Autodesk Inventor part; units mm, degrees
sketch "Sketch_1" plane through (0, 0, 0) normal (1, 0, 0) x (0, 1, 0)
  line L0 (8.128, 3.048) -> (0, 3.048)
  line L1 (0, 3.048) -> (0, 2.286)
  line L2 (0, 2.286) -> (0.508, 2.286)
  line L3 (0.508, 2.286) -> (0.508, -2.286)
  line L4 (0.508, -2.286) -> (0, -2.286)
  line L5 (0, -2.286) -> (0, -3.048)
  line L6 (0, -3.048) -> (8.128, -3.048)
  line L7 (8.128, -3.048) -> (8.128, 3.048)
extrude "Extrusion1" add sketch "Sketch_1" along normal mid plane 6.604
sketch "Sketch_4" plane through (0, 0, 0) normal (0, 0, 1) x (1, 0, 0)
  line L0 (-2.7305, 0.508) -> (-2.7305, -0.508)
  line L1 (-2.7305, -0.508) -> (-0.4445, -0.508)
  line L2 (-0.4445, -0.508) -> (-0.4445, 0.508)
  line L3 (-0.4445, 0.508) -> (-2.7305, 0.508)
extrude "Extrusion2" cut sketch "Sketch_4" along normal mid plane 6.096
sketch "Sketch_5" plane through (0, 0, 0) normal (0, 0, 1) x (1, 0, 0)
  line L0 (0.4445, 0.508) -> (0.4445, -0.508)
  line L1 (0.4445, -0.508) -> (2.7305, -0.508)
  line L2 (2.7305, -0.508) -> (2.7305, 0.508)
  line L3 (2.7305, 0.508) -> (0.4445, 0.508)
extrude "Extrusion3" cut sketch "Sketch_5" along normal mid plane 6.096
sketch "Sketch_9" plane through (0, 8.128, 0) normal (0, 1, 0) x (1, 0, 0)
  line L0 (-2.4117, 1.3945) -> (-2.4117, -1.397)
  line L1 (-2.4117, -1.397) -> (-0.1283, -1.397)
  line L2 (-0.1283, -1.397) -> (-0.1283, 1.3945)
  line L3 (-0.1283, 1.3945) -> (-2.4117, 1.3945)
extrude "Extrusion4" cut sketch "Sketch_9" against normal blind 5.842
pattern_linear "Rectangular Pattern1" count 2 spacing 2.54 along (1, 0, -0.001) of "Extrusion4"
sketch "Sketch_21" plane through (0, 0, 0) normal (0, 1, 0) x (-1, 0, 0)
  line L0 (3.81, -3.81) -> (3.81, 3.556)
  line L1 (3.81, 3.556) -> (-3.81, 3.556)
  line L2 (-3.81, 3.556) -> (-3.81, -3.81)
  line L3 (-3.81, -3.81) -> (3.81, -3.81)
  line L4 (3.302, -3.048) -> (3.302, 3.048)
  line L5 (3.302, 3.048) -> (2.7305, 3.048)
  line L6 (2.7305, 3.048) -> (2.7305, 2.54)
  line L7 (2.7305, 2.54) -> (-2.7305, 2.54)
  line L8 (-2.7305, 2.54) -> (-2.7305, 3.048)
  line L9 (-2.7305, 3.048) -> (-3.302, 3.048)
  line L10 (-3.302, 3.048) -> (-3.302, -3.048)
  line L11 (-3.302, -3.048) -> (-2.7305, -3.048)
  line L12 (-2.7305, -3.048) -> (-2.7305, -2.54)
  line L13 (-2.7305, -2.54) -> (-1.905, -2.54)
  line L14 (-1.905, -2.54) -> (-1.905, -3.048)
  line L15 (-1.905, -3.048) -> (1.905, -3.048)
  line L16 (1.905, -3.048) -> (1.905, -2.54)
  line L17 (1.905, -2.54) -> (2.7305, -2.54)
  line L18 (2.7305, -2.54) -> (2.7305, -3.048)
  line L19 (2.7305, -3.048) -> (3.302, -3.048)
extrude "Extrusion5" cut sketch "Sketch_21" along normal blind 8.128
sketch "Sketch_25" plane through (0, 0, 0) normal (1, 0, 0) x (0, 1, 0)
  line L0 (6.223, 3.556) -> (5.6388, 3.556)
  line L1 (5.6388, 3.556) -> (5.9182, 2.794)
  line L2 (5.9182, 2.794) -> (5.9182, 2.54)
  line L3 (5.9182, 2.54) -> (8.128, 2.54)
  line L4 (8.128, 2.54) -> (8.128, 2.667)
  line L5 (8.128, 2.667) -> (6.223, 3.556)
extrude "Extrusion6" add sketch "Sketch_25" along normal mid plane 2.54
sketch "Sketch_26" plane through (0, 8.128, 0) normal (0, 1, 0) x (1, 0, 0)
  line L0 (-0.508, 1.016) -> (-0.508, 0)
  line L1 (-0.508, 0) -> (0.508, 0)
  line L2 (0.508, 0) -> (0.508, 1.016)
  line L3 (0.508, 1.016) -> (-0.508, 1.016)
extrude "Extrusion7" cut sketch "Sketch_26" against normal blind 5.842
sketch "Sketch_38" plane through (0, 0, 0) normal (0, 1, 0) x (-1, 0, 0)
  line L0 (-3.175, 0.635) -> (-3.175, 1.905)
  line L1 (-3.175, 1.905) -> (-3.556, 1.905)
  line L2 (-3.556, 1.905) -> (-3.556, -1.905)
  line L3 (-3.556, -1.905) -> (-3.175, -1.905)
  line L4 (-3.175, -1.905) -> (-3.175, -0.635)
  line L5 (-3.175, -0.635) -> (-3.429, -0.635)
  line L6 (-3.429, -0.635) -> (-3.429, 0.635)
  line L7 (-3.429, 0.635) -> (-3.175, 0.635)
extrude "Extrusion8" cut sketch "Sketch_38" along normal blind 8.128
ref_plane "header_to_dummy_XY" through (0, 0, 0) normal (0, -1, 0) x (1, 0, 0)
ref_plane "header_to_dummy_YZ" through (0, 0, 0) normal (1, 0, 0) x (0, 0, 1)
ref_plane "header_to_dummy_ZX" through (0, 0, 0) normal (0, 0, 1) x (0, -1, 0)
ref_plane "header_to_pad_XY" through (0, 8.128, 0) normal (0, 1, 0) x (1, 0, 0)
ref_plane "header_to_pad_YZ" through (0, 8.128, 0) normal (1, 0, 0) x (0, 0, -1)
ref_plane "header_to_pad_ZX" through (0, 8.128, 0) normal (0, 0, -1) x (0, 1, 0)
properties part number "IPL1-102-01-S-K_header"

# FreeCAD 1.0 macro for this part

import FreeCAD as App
import Part
import Sketcher
Q = App.Units.Quantity

doc = App.newDocument("Part")
params = doc.addObject("Spreadsheet::Sheet", "Params")
for row, (alias, value) in enumerate([
    ("sketch1_width", "0.32 in"),
    ("sketch1_width2", "0.02 in"),
    ("sketch1_height", "0.24 in"),
    ("sketch1_height2", "0.03 in"),
    ("pad1_length", "0.26 in"),
    ("sketch2_width", "0.09 in"),
    ("sketch2_height", "0.04 in"),
    ("pocket1_length", "0.24 in"),
    ("sketch3_width", "0.09 in"),
    ("sketch3_height", "0.04 in"),
    ("pocket2_length", "0.24 in"),
    ("pocket3_length", "0.23 in"),
    ("linearpattern_pitch", "0.1 in"),
    ("sketch5_width", "0.3 in"),
    ("sketch5_width2", "0.15 in"),
    ("sketch5_height", "0.29 in"),
    ("sketch5_height2", "0.24 in"),
    ("sketch5_height3", "0.02 in"),
    ("pocket4_length", "0.32 in"),
    ("sketch6_height", "0.01 in"),
    ("sketch6_width", "0.023 in"),
    ("sketch6_width2", "0.087 in"),
    ("sketch6_height2", "0.005 in"),
    ("pad2_length", "0.1 in"),
    ("sketch7_width", "0.04 in"),
    ("pocket5_length", "0.23 in"),
    ("sketch8_width", "0.01 in"),
    ("sketch8_height", "0.05 in"),
    ("sketch8_width2", "0.015 in"),
    ("pocket6_length", "0.32 in"),
], start=1):
    params.set(f"A{row}", alias)
    params.set(f"B{row}", "=" + value)
    params.setAlias(f"B{row}", alias)

body = doc.addObject("PartDesign::Body", "Body")

# Sketch on YZ plane
sketch1 = body.newObject("Sketcher::SketchObject", "Sketch")
sketch1.AttachmentSupport = (doc.getObject("YZ_Plane"), [""])
sketch1.MapMode = "FlatFace"
sketch1.addGeometry(Part.LineSegment(App.Vector(8.1, -3, 0), App.Vector(8.1, 3, 0)), False)
sketch1.addGeometry(Part.LineSegment(App.Vector(8.1, 3, 0), App.Vector(0, 3, 0)), False)
sketch1.addGeometry(Part.LineSegment(App.Vector(0, 3, 0), App.Vector(0, 2.3, 0)), False)
sketch1.addGeometry(Part.LineSegment(App.Vector(0, 2.3, 0), App.Vector(0.5, 2.3, 0)), False)
sketch1.addGeometry(Part.LineSegment(App.Vector(0.5, 2.3, 0), App.Vector(0.5, -2.3, 0)), False)
sketch1.addGeometry(Part.LineSegment(App.Vector(0.5, -2.3, 0), App.Vector(0, -2.3, 0)), False)
sketch1.addGeometry(Part.LineSegment(App.Vector(0, -2.3, 0), App.Vector(0, -3, 0)), False)
sketch1.addGeometry(Part.LineSegment(App.Vector(0, -3, 0), App.Vector(8.1, -3, 0)), False)
sketch1.addConstraint(Sketcher.Constraint("Coincident", 0, 2, 1, 1))
sketch1.addConstraint(Sketcher.Constraint("Coincident", 1, 2, 2, 1))
sketch1.addConstraint(Sketcher.Constraint("Coincident", 2, 2, 3, 1))
sketch1.addConstraint(Sketcher.Constraint("Coincident", 3, 2, 4, 1))
sketch1.addConstraint(Sketcher.Constraint("Coincident", 4, 2, 5, 1))
sketch1.addConstraint(Sketcher.Constraint("Coincident", 5, 2, 6, 1))
sketch1.addConstraint(Sketcher.Constraint("Coincident", 6, 2, 7, 1))
sketch1.addConstraint(Sketcher.Constraint("Coincident", 7, 2, 0, 1))
sketch1.addConstraint(Sketcher.Constraint("Vertical", 0))
sketch1.addConstraint(Sketcher.Constraint("Horizontal", 1))
sketch1.addConstraint(Sketcher.Constraint("Vertical", 2))
sketch1.addConstraint(Sketcher.Constraint("Horizontal", 3))
sketch1.addConstraint(Sketcher.Constraint("Vertical", 4))
sketch1.addConstraint(Sketcher.Constraint("Horizontal", 5))
sketch1.addConstraint(Sketcher.Constraint("Vertical", 6))
sketch1.addConstraint(Sketcher.Constraint("Horizontal", 7))
sketch1.addConstraint(Sketcher.Constraint("Symmetric", 2, 2, 5, 2, -1, 1))
sketch1.addConstraint(Sketcher.Constraint("Symmetric", 1, 2, 6, 2, -1))
sketch1.addConstraint(Sketcher.Constraint("DistanceX", 1, 2, 1, 1, Q("0.32 in")))
sketch1.addConstraint(Sketcher.Constraint("DistanceX", 3, 1, 3, 2, Q("0.02 in")))
sketch1.addConstraint(Sketcher.Constraint("DistanceY", 0, 1, 0, 2, Q("0.24 in")))
sketch1.addConstraint(Sketcher.Constraint("DistanceY", 2, 2, 2, 1, Q("0.03 in")))
sketch1.setExpression("Constraints[18]", "Params.sketch1_width")
sketch1.setExpression("Constraints[19]", "Params.sketch1_width2")
sketch1.setExpression("Constraints[20]", "Params.sketch1_height")
sketch1.setExpression("Constraints[21]", "Params.sketch1_height2")
pad1 = body.newObject("PartDesign::Pad", "Pad")
pad1.Profile = sketch1
pad1.setExpression("Length", "Params.pad1_length")
pad1.Midplane = True

# Sketch on XY plane
sketch2 = body.newObject("Sketcher::SketchObject", "Sketch001")
sketch2.AttachmentSupport = (doc.getObject("XY_Plane"), [""])
sketch2.MapMode = "FlatFace"
sketch2.addGeometry(Part.LineSegment(App.Vector(-0.4, 0.5, 0), App.Vector(-2.7, 0.5, 0)), False)
sketch2.addGeometry(Part.LineSegment(App.Vector(-2.7, 0.5, 0), App.Vector(-2.7, -0.5, 0)), False)
sketch2.addGeometry(Part.LineSegment(App.Vector(-2.7, -0.5, 0), App.Vector(-0.4, -0.5, 0)), False)
sketch2.addGeometry(Part.LineSegment(App.Vector(-0.4, -0.5, 0), App.Vector(-0.4, 0.5, 0)), False)
sketch2.addConstraint(Sketcher.Constraint("Coincident", 0, 2, 1, 1))
sketch2.addConstraint(Sketcher.Constraint("Coincident", 1, 2, 2, 1))
sketch2.addConstraint(Sketcher.Constraint("Coincident", 2, 2, 3, 1))
sketch2.addConstraint(Sketcher.Constraint("Coincident", 3, 2, 0, 1))
sketch2.addConstraint(Sketcher.Constraint("Horizontal", 0))
sketch2.addConstraint(Sketcher.Constraint("Vertical", 1))
sketch2.addConstraint(Sketcher.Constraint("Horizontal", 2))
sketch2.addConstraint(Sketcher.Constraint("Vertical", 3))
sketch2.addConstraint(Sketcher.Constraint("DistanceX", 0, 2, 0, 1, Q("0.09 in")))
sketch2.addConstraint(Sketcher.Constraint("DistanceY", 1, 2, 1, 1, Q("0.04 in")))
sketch2.addConstraint(Sketcher.Constraint("DistanceY", -1, 1, 0, 2, Q("0.02 in")))
sketch2.addConstraint(Sketcher.Constraint("DistanceX", 0, 2, -1, 1, Q("0.1075 in")))
sketch2.setExpression("Constraints[8]", "Params.sketch2_width")
sketch2.setExpression("Constraints[9]", "Params.sketch2_height")
pocket1 = body.newObject("PartDesign::Pocket", "Pocket")
pocket1.Profile = sketch2
pocket1.setExpression("Length", "Params.pocket1_length")
pocket1.Midplane = True

# Sketch on XY plane
sketch3 = body.newObject("Sketcher::SketchObject", "Sketch002")
sketch3.AttachmentSupport = (doc.getObject("XY_Plane"), [""])
sketch3.MapMode = "FlatFace"
sketch3.addGeometry(Part.LineSegment(App.Vector(2.7, 0.5, 0), App.Vector(0.4, 0.5, 0)), False)
sketch3.addGeometry(Part.LineSegment(App.Vector(0.4, 0.5, 0), App.Vector(0.4, -0.5, 0)), False)
sketch3.addGeometry(Part.LineSegment(App.Vector(0.4, -0.5, 0), App.Vector(2.7, -0.5, 0)), False)
sketch3.addGeometry(Part.LineSegment(App.Vector(2.7, -0.5, 0), App.Vector(2.7, 0.5, 0)), False)
sketch3.addConstraint(Sketcher.Constraint("Coincident", 0, 2, 1, 1))
sketch3.addConstraint(Sketcher.Constraint("Coincident", 1, 2, 2, 1))
sketch3.addConstraint(Sketcher.Constraint("Coincident", 2, 2, 3, 1))
sketch3.addConstraint(Sketcher.Constraint("Coincident", 3, 2, 0, 1))
sketch3.addConstraint(Sketcher.Constraint("Horizontal", 0))
sketch3.addConstraint(Sketcher.Constraint("Vertical", 1))
sketch3.addConstraint(Sketcher.Constraint("Horizontal", 2))
sketch3.addConstraint(Sketcher.Constraint("Vertical", 3))
sketch3.addConstraint(Sketcher.Constraint("DistanceX", 0, 2, 0, 1, Q("0.09 in")))
sketch3.addConstraint(Sketcher.Constraint("DistanceY", 1, 2, 1, 1, Q("0.04 in")))
sketch3.addConstraint(Sketcher.Constraint("DistanceY", -1, 1, 0, 2, Q("0.02 in")))
sketch3.addConstraint(Sketcher.Constraint("DistanceX", -1, 1, 0, 2, Q("0.0175 in")))
sketch3.setExpression("Constraints[8]", "Params.sketch3_width")
sketch3.setExpression("Constraints[9]", "Params.sketch3_height")
pocket2 = body.newObject("PartDesign::Pocket", "Pocket001")
pocket2.Profile = sketch3
pocket2.setExpression("Length", "Params.pocket2_length")
pocket2.Midplane = True

# Sketch on XZ plane
sketch4 = body.newObject("Sketcher::SketchObject", "Sketch003")
sketch4.AttachmentSupport = (doc.getObject("XZ_Plane"), [""])
sketch4.MapMode = "FlatFace"
sketch4.AttachmentOffset = App.Placement(App.Vector(0, 0, -0.32 * 25.4), App.Rotation())
sketch4.addGeometry(Part.LineSegment(App.Vector(-0.1, -1.4, 0), App.Vector(-2.4, -1.4, 0)), False)
sketch4.addGeometry(Part.LineSegment(App.Vector(-2.4, -1.4, 0), App.Vector(-2.4, 1.4, 0)), False)
sketch4.addGeometry(Part.LineSegment(App.Vector(-2.4, 1.4, 0), App.Vector(-0.1, 1.4, 0)), False)
sketch4.addGeometry(Part.LineSegment(App.Vector(-0.1, 1.4, 0), App.Vector(-0.1, -1.4, 0)), False)
sketch4.addConstraint(Sketcher.Constraint("Coincident", 0, 2, 1, 1))
sketch4.addConstraint(Sketcher.Constraint("Coincident", 1, 2, 2, 1))
sketch4.addConstraint(Sketcher.Constraint("Coincident", 2, 2, 3, 1))
sketch4.addConstraint(Sketcher.Constraint("Coincident", 3, 2, 0, 1))
sketch4.addConstraint(Sketcher.Constraint("Horizontal", 0))
sketch4.addConstraint(Sketcher.Constraint("Vertical", 1))
sketch4.addConstraint(Sketcher.Constraint("Horizontal", 2))
sketch4.addConstraint(Sketcher.Constraint("Vertical", 3))
sketch4.addConstraint(Sketcher.Constraint("DistanceX", 0, 2, 0, 1, Q("0.0899 in")))
sketch4.addConstraint(Sketcher.Constraint("DistanceY", 1, 1, 1, 2, Q("0.1099 in")))
sketch4.addConstraint(Sketcher.Constraint("DistanceY", -1, 1, 1, 2, Q("0.055 in")))
sketch4.addConstraint(Sketcher.Constraint("DistanceX", 0, 2, -1, 1, 2.4117))
pocket3 = body.newObject("PartDesign::Pocket", "Pocket002")
pocket3.Profile = sketch4
pocket3.setExpression("Length", "Params.pocket3_length")
pocket3.Reversed = True
doc.recompute()

datumline = body.newObject("PartDesign::Line", "DatumLine")
datumline.Placement = App.Placement(App.Vector(0, 0, 0), App.Rotation(App.Vector(0, 0, 1), App.Vector(0.9999995, 0, -0.001)))
linearpattern = body.newObject("PartDesign::LinearPattern", "LinearPattern")
linearpattern.Originals = [pocket3]
linearpattern.Direction = (datumline, [""])
linearpattern.Mode = "offset"
linearpattern.setExpression("Offset", "Params.linearpattern_pitch")
linearpattern.Occurrences = 2
body.Tip = linearpattern

# Sketch on XZ plane
sketch5 = body.newObject("Sketcher::SketchObject", "Sketch004")
sketch5.AttachmentSupport = (doc.getObject("XZ_Plane"), [""])
sketch5.MapMode = "FlatFace"
sketch5.addGeometry(Part.LineSegment(App.Vector(3.8, -3.8, 0), App.Vector(-3.8, -3.8, 0)), False)
sketch5.addGeometry(Part.LineSegment(App.Vector(-3.8, -3.8, 0), App.Vector(-3.8, 3.6, 0)), False)
sketch5.addGeometry(Part.LineSegment(App.Vector(-3.8, 3.6, 0), App.Vector(3.8, 3.6, 0)), False)
sketch5.addGeometry(Part.LineSegment(App.Vector(3.8, 3.6, 0), App.Vector(3.8, -3.8, 0)), False)
sketch5.addGeometry(Part.LineSegment(App.Vector(-3.3, 3, 0), App.Vector(-3.3, -3, 0)), False)
sketch5.addGeometry(Part.LineSegment(App.Vector(-3.3, -3, 0), App.Vector(-2.7, -3, 0)), False)
sketch5.addGeometry(Part.LineSegment(App.Vector(-2.7, -3, 0), App.Vector(-2.7, -2.5, 0)), False)
sketch5.addGeometry(Part.LineSegment(App.Vector(-2.7, -2.5, 0), App.Vector(-1.9, -2.5, 0)), False)
sketch5.addGeometry(Part.LineSegment(App.Vector(-1.9, -2.5, 0), App.Vector(-1.9, -3, 0)), False)
sketch5.addGeometry(Part.LineSegment(App.Vector(-1.9, -3, 0), App.Vector(1.9, -3, 0)), False)
sketch5.addGeometry(Part.LineSegment(App.Vector(1.9, -3, 0), App.Vector(1.9, -2.5, 0)), False)
sketch5.addGeometry(Part.LineSegment(App.Vector(1.9, -2.5, 0), App.Vector(2.7, -2.5, 0)), False)
sketch5.addGeometry(Part.LineSegment(App.Vector(2.7, -2.5, 0), App.Vector(2.7, -3, 0)), False)
sketch5.addGeometry(Part.LineSegment(App.Vector(2.7, -3, 0), App.Vector(3.3, -3, 0)), False)
sketch5.addGeometry(Part.LineSegment(App.Vector(3.3, -3, 0), App.Vector(3.3, 3, 0)), False)
sketch5.addGeometry(Part.LineSegment(App.Vector(3.3, 3, 0), App.Vector(2.7, 3, 0)), False)
sketch5.addGeometry(Part.LineSegment(App.Vector(2.7, 3, 0), App.Vector(2.7, 2.5, 0)), False)
sketch5.addGeometry(Part.LineSegment(App.Vector(2.7, 2.5, 0), App.Vector(-2.7, 2.5, 0)), False)
sketch5.addGeometry(Part.LineSegment(App.Vector(-2.7, 2.5, 0), App.Vector(-2.7, 3, 0)), False)
sketch5.addGeometry(Part.LineSegment(App.Vector(-2.7, 3, 0), App.Vector(-3.3, 3, 0)), False)
sketch5.addConstraint(Sketcher.Constraint("Coincident", 0, 2, 1, 1))
sketch5.addConstraint(Sketcher.Constraint("Coincident", 1, 2, 2, 1))
sketch5.addConstraint(Sketcher.Constraint("Coincident", 2, 2, 3, 1))
sketch5.addConstraint(Sketcher.Constraint("Coincident", 3, 2, 0, 1))
sketch5.addConstraint(Sketcher.Constraint("Coincident", 4, 2, 5, 1))
sketch5.addConstraint(Sketcher.Constraint("Coincident", 5, 2, 6, 1))
sketch5.addConstraint(Sketcher.Constraint("Coincident", 6, 2, 7, 1))
sketch5.addConstraint(Sketcher.Constraint("Coincident", 7, 2, 8, 1))
sketch5.addConstraint(Sketcher.Constraint("Coincident", 8, 2, 9, 1))
sketch5.addConstraint(Sketcher.Constraint("Coincident", 9, 2, 10, 1))
sketch5.addConstraint(Sketcher.Constraint("Coincident", 10, 2, 11, 1))
sketch5.addConstraint(Sketcher.Constraint("Coincident", 11, 2, 12, 1))
sketch5.addConstraint(Sketcher.Constraint("Coincident", 12, 2, 13, 1))
sketch5.addConstraint(Sketcher.Constraint("Coincident", 13, 2, 14, 1))
sketch5.addConstraint(Sketcher.Constraint("Coincident", 14, 2, 15, 1))
sketch5.addConstraint(Sketcher.Constraint("Coincident", 15, 2, 16, 1))
sketch5.addConstraint(Sketcher.Constraint("Coincident", 16, 2, 17, 1))
sketch5.addConstraint(Sketcher.Constraint("Coincident", 17, 2, 18, 1))
sketch5.addConstraint(Sketcher.Constraint("Coincident", 18, 2, 19, 1))
sketch5.addConstraint(Sketcher.Constraint("Coincident", 19, 2, 4, 1))
sketch5.addConstraint(Sketcher.Constraint("Horizontal", 0))
sketch5.addConstraint(Sketcher.Constraint("Vertical", 1))
sketch5.addConstraint(Sketcher.Constraint("Horizontal", 2))
sketch5.addConstraint(Sketcher.Constraint("Vertical", 3))
sketch5.addConstraint(Sketcher.Constraint("Vertical", 4))
sketch5.addConstraint(Sketcher.Constraint("Horizontal", 5))
sketch5.addConstraint(Sketcher.Constraint("Vertical", 6))
sketch5.addConstraint(Sketcher.Constraint("Horizontal", 7))
sketch5.addConstraint(Sketcher.Constraint("Vertical", 8))
sketch5.addConstraint(Sketcher.Constraint("Horizontal", 9))
sketch5.addConstraint(Sketcher.Constraint("Vertical", 10))
sketch5.addConstraint(Sketcher.Constraint("Horizontal", 11))
sketch5.addConstraint(Sketcher.Constraint("Vertical", 12))
sketch5.addConstraint(Sketcher.Constraint("Horizontal", 13))
sketch5.addConstraint(Sketcher.Constraint("Vertical", 14))
sketch5.addConstraint(Sketcher.Constraint("Horizontal", 15))
sketch5.addConstraint(Sketcher.Constraint("Vertical", 16))
sketch5.addConstraint(Sketcher.Constraint("Horizontal", 17))
sketch5.addConstraint(Sketcher.Constraint("Vertical", 18))
sketch5.addConstraint(Sketcher.Constraint("Horizontal", 19))
sketch5.addConstraint(Sketcher.Constraint("Symmetric", 4, 2, 14, 2, -1, 1))
sketch5.addConstraint(Sketcher.Constraint("Symmetric", 6, 2, 16, 2, -1, 1))
sketch5.addConstraint(Sketcher.Constraint("Symmetric", 11, 2, 17, 2, -1, 1))
sketch5.addConstraint(Sketcher.Constraint("Symmetric", 5, 2, 12, 2, -2))
sketch5.addConstraint(Sketcher.Constraint("Horizontal", 5, 2, 8, 2))
sketch5.addConstraint(Sketcher.Constraint("Horizontal", 15, 2, 18, 2))
sketch5.addConstraint(Sketcher.Constraint("Equal", 7, 11))
sketch5.addConstraint(Sketcher.Constraint("DistanceX", 0, 2, 0, 1, Q("0.3 in")))
sketch5.addConstraint(Sketcher.Constraint("DistanceX", 9, 1, 9, 2, Q("0.15 in")))
sketch5.addConstraint(Sketcher.Constraint("DistanceY", 1, 1, 1, 2, Q("0.29 in")))
sketch5.addConstraint(Sketcher.Constraint("DistanceY", 4, 2, 4, 1, Q("0.24 in")))
sketch5.addConstraint(Sketcher.Constraint("DistanceY", 6, 1, 6, 2, Q("0.02 in")))
sketch5.addConstraint(Sketcher.Constraint("DistanceX", 17, 2, 17, 1, Q("0.215 in")))
sketch5.addConstraint(Sketcher.Constraint("DistanceX", 0, 2, -1, 1, Q("0.15 in")))
sketch5.addConstraint(Sketcher.Constraint("DistanceY", 0, 2, -1, 1, Q("0.15 in")))
sketch5.addConstraint(Sketcher.Constraint("DistanceX", 4, 2, -1, 1, Q("0.13 in")))
sketch5.setExpression("Constraints[47]", "Params.sketch5_width")
sketch5.setExpression("Constraints[48]", "Params.sketch5_width2")
sketch5.setExpression("Constraints[49]", "Params.sketch5_height")
sketch5.setExpression("Constraints[50]", "Params.sketch5_height2")
sketch5.setExpression("Constraints[51]", "Params.sketch5_height3")
pocket4 = body.newObject("PartDesign::Pocket", "Pocket003")
pocket4.Profile = sketch5
pocket4.setExpression("Length", "Params.pocket4_length")

# Sketch on YZ plane
sketch6 = body.newObject("Sketcher::SketchObject", "Sketch005")
sketch6.AttachmentSupport = (doc.getObject("YZ_Plane"), [""])
sketch6.MapMode = "FlatFace"
sketch6.addGeometry(Part.LineSegment(App.Vector(8.13, 2.67, 0), App.Vector(6.22, 3.56, 0)), False)
sketch6.addGeometry(Part.LineSegment(App.Vector(6.22, 3.56, 0), App.Vector(5.64, 3.56, 0)), False)
sketch6.addGeometry(Part.LineSegment(App.Vector(5.64, 3.56, 0), App.Vector(5.92, 2.79, 0)), False)
sketch6.addGeometry(Part.LineSegment(App.Vector(5.92, 2.79, 0), App.Vector(5.92, 2.54, 0)), False)
sketch6.addGeometry(Part.LineSegment(App.Vector(5.92, 2.54, 0), App.Vector(8.13, 2.54, 0)), False)
sketch6.addGeometry(Part.LineSegment(App.Vector(8.13, 2.54, 0), App.Vector(8.13, 2.67, 0)), False)
sketch6.addConstraint(Sketcher.Constraint("Coincident", 0, 2, 1, 1))
sketch6.addConstraint(Sketcher.Constraint("Coincident", 1, 2, 2, 1))
sketch6.addConstraint(Sketcher.Constraint("Coincident", 2, 2, 3, 1))
sketch6.addConstraint(Sketcher.Constraint("Coincident", 3, 2, 4, 1))
sketch6.addConstraint(Sketcher.Constraint("Coincident", 4, 2, 5, 1))
sketch6.addConstraint(Sketcher.Constraint("Coincident", 5, 2, 0, 1))
sketch6.addConstraint(Sketcher.Constraint("Horizontal", 1))
sketch6.addConstraint(Sketcher.Constraint("Vertical", 3))
sketch6.addConstraint(Sketcher.Constraint("Horizontal", 4))
sketch6.addConstraint(Sketcher.Constraint("Vertical", 5))
sketch6.addConstraint(Sketcher.Constraint("DistanceY", 3, 2, 3, 1, Q("0.01 in")))
sketch6.addConstraint(Sketcher.Constraint("DistanceY", -1, 1, 3, 2, Q("0.1 in")))
sketch6.addConstraint(Sketcher.Constraint("DistanceX", 1, 2, 1, 1, Q("0.023 in")))
sketch6.addConstraint(Sketcher.Constraint("DistanceX", 4, 1, 4, 2, Q("0.087 in")))
sketch6.addConstraint(Sketcher.Constraint("DistanceY", 5, 1, 5, 2, Q("0.005 in")))
sketch6.addConstraint(Sketcher.Constraint("DistanceY", -1, 1, 0, 2, Q("0.14 in")))
sketch6.addConstraint(Sketcher.Constraint("DistanceX", -1, 1, 4, 2, Q("0.32 in")))
sketch6.addConstraint(Sketcher.Constraint("DistanceX", -1, 1, 0, 2, Q("0.245 in")))
sketch6.setExpression("Constraints[10]", "Params.sketch6_height")
sketch6.setExpression("Constraints[12]", "Params.sketch6_width")
sketch6.setExpression("Constraints[13]", "Params.sketch6_width2")
sketch6.setExpression("Constraints[14]", "Params.sketch6_height2")
pad2 = body.newObject("PartDesign::Pad", "Pad001")
pad2.Profile = sketch6
pad2.setExpression("Length", "Params.pad2_length")
pad2.Midplane = True

# Sketch on XZ plane
sketch7 = body.newObject("Sketcher::SketchObject", "Sketch006")
sketch7.AttachmentSupport = (doc.getObject("XZ_Plane"), [""])
sketch7.MapMode = "FlatFace"
sketch7.AttachmentOffset = App.Placement(App.Vector(0, 0, -0.32 * 25.4), App.Rotation())
sketch7.addGeometry(Part.LineSegment(App.Vector(0.5, -1, 0), App.Vector(-0.5, -1, 0)), False)
sketch7.addGeometry(Part.LineSegment(App.Vector(-0.5, -1, 0), App.Vector(-0.5, 0, 0)), False)
sketch7.addGeometry(Part.LineSegment(App.Vector(-0.5, 0, 0), App.Vector(0.5, 0, 0)), False)
sketch7.addGeometry(Part.LineSegment(App.Vector(0.5, 0, 0), App.Vector(0.5, -1, 0)), False)
sketch7.addConstraint(Sketcher.Constraint("Coincident", 0, 2, 1, 1))
sketch7.addConstraint(Sketcher.Constraint("Coincident", 1, 2, 2, 1))
sketch7.addConstraint(Sketcher.Constraint("Coincident", 2, 2, 3, 1))
sketch7.addConstraint(Sketcher.Constraint("Coincident", 3, 2, 0, 1))
sketch7.addConstraint(Sketcher.Constraint("Horizontal", 0))
sketch7.addConstraint(Sketcher.Constraint("Vertical", 1))
sketch7.addConstraint(Sketcher.Constraint("Horizontal", 2))
sketch7.addConstraint(Sketcher.Constraint("Vertical", 3))
sketch7.addConstraint(Sketcher.Constraint("Symmetric", 1, 2, 2, 2, -1, 1))
sketch7.addConstraint(Sketcher.Constraint("Equal", 2, 1))
sketch7.addConstraint(Sketcher.Constraint("DistanceX", 0, 2, 0, 1, Q("0.04 in")))
sketch7.setExpression("Constraints[10]", "Params.sketch7_width")
pocket5 = body.newObject("PartDesign::Pocket", "Pocket004")
pocket5.Profile = sketch7
pocket5.setExpression("Length", "Params.pocket5_length")
pocket5.Reversed = True

# Sketch on XZ plane
sketch8 = body.newObject("Sketcher::SketchObject", "Sketch007")
sketch8.AttachmentSupport = (doc.getObject("XZ_Plane"), [""])
sketch8.MapMode = "FlatFace"
sketch8.addGeometry(Part.LineSegment(App.Vector(3.43, 0.64, 0), App.Vector(3.17, 0.64, 0)), False)
sketch8.addGeometry(Part.LineSegment(App.Vector(3.17, 0.64, 0), App.Vector(3.17, 1.91, 0)), False)
sketch8.addGeometry(Part.LineSegment(App.Vector(3.17, 1.91, 0), App.Vector(3.56, 1.91, 0)), False)
sketch8.addGeometry(Part.LineSegment(App.Vector(3.56, 1.91, 0), App.Vector(3.56, -1.91, 0)), False)
sketch8.addGeometry(Part.LineSegment(App.Vector(3.56, -1.91, 0), App.Vector(3.17, -1.91, 0)), False)
sketch8.addGeometry(Part.LineSegment(App.Vector(3.17, -1.91, 0), App.Vector(3.17, -0.64, 0)), False)
sketch8.addGeometry(Part.LineSegment(App.Vector(3.17, -0.64, 0), App.Vector(3.43, -0.64, 0)), False)
sketch8.addGeometry(Part.LineSegment(App.Vector(3.43, -0.64, 0), App.Vector(3.43, 0.64, 0)), False)
sketch8.addConstraint(Sketcher.Constraint("Coincident", 0, 2, 1, 1))
sketch8.addConstraint(Sketcher.Constraint("Coincident", 1, 2, 2, 1))
sketch8.addConstraint(Sketcher.Constraint("Coincident", 2, 2, 3, 1))
sketch8.addConstraint(Sketcher.Constraint("Coincident", 3, 2, 4, 1))
sketch8.addConstraint(Sketcher.Constraint("Coincident", 4, 2, 5, 1))
sketch8.addConstraint(Sketcher.Constraint("Coincident", 5, 2, 6, 1))
sketch8.addConstraint(Sketcher.Constraint("Coincident", 6, 2, 7, 1))
sketch8.addConstraint(Sketcher.Constraint("Coincident", 7, 2, 0, 1))
sketch8.addConstraint(Sketcher.Constraint("Horizontal", 0))
sketch8.addConstraint(Sketcher.Constraint("Vertical", 1))
sketch8.addConstraint(Sketcher.Constraint("Horizontal", 2))
sketch8.addConstraint(Sketcher.Constraint("Vertical", 3))
sketch8.addConstraint(Sketcher.Constraint("Horizontal", 4))
sketch8.addConstraint(Sketcher.Constraint("Vertical", 5))
sketch8.addConstraint(Sketcher.Constraint("Horizontal", 6))
sketch8.addConstraint(Sketcher.Constraint("Vertical", 7))
sketch8.addConstraint(Sketcher.Constraint("Symmetric", 1, 2, 4, 2, -1))
sketch8.addConstraint(Sketcher.Constraint("Equal", 1, 5))
sketch8.addConstraint(Sketcher.Constraint("Equal", 5, 7))
sketch8.addConstraint(Sketcher.Constraint("DistanceX", 0, 2, 0, 1, Q("0.01 in")))
sketch8.addConstraint(Sketcher.Constraint("DistanceY", 1, 1, 1, 2, Q("0.05 in")))
sketch8.addConstraint(Sketcher.Constraint("DistanceX", 2, 1, 2, 2, Q("0.015 in")))
sketch8.addConstraint(Sketcher.Constraint("DistanceX", -1, 1, 2, 2, Q("0.14 in")))
sketch8.setExpression("Constraints[19]", "Params.sketch8_width")
sketch8.setExpression("Constraints[20]", "Params.sketch8_height")
sketch8.setExpression("Constraints[21]", "Params.sketch8_width2")
pocket6 = body.newObject("PartDesign::Pocket", "Pocket005")
pocket6.Profile = sketch8
pocket6.setExpression("Length", "Params.pocket6_length")

doc.recompute()
